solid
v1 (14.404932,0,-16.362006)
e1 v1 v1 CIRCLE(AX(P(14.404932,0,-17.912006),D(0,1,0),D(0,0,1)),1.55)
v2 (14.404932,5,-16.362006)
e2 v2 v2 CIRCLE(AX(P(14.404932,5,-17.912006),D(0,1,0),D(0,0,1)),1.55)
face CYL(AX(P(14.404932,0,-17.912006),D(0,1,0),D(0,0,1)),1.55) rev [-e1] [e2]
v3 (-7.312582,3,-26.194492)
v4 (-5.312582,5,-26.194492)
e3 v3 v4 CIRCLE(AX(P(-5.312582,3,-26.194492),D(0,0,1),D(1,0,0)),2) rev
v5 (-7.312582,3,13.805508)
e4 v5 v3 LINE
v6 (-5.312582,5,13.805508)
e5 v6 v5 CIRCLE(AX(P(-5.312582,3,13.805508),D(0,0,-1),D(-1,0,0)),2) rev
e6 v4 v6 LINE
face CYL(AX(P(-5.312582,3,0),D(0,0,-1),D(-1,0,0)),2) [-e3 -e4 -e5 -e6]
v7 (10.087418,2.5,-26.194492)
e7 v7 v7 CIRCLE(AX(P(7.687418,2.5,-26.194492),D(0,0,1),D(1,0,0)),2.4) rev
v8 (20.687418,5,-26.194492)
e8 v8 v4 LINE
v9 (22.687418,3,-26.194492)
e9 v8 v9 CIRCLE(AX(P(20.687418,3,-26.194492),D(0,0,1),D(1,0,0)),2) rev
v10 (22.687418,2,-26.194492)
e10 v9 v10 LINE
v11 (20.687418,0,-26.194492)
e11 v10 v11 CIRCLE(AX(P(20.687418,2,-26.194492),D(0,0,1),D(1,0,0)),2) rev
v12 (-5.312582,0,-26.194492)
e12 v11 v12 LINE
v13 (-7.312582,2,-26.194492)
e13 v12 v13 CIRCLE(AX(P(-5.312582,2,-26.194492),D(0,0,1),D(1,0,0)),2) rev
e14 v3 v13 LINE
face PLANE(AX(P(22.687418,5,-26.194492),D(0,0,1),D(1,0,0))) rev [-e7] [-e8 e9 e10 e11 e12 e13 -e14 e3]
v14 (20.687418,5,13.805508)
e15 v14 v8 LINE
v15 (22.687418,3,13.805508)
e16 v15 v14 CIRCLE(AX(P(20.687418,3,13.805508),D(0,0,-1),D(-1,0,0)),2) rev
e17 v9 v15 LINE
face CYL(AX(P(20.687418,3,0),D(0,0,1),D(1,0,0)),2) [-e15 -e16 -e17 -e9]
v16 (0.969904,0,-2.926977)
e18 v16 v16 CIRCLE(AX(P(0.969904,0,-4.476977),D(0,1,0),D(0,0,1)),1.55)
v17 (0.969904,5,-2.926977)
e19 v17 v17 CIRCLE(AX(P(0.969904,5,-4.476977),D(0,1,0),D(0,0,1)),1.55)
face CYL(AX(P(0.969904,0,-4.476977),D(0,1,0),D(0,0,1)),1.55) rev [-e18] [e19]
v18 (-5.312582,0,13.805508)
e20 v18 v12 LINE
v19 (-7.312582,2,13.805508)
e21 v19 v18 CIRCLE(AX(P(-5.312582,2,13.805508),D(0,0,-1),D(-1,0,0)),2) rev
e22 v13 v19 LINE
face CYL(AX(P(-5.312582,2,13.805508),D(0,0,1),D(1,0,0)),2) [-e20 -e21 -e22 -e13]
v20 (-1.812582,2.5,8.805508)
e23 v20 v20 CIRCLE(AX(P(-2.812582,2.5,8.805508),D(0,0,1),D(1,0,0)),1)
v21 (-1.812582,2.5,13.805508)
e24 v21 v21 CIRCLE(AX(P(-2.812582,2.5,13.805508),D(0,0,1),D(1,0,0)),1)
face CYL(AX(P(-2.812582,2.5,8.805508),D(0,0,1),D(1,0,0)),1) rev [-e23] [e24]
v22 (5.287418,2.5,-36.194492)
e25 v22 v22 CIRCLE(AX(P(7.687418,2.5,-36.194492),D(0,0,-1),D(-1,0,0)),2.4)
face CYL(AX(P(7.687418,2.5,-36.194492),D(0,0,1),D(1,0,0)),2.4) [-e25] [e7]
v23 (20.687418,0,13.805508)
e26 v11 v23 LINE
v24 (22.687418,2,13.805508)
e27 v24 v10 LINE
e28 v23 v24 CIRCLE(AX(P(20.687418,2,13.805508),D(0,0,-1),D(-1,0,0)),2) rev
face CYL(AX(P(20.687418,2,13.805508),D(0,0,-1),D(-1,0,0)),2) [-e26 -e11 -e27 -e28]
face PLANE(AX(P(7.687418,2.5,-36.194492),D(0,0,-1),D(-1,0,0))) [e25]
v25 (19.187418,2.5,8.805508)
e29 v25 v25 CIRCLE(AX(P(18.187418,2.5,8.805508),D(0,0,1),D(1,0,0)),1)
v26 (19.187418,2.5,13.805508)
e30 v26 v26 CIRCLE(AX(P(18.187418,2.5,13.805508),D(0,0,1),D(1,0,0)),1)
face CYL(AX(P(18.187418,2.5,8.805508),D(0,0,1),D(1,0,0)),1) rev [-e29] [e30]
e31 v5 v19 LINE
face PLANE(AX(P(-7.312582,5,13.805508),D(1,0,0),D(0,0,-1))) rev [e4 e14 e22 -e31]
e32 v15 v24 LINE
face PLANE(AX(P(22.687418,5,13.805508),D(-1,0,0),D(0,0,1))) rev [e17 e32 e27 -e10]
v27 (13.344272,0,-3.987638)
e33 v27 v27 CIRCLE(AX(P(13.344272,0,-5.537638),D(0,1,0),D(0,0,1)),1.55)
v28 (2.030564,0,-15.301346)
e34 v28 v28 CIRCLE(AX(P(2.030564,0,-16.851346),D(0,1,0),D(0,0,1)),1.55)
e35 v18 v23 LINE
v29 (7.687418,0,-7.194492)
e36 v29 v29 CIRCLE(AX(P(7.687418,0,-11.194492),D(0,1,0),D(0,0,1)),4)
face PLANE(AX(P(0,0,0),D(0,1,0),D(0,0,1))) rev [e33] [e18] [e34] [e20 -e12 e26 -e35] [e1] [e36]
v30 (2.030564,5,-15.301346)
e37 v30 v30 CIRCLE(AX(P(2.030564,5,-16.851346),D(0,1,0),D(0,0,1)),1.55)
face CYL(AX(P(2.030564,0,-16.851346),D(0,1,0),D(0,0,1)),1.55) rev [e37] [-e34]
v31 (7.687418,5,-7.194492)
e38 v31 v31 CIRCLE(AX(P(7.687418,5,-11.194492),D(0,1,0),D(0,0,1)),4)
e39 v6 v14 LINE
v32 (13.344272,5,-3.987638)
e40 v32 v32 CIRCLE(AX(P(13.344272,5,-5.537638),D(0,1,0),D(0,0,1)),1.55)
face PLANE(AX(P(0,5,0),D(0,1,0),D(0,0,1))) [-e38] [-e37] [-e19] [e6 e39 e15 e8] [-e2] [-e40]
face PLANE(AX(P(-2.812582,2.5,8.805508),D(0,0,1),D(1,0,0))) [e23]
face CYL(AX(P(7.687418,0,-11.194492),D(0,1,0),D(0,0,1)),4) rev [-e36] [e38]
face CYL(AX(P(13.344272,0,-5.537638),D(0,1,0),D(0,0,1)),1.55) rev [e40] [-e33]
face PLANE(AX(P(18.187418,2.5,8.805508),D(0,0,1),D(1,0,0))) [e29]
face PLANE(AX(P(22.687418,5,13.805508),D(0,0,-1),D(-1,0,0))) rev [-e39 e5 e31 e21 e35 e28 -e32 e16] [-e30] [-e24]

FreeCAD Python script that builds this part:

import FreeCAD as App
import Part
import Sketcher
from FreeCAD import Vector
Q = App.Units.Quantity


def edges_at(feature, points):
    """Names of the edges that pass closest to the given points."""
    edges = feature.Shape.Edges
    near = lambda p: min(range(len(edges)), key=lambda i: edges[i].distToShape(Part.Vertex(*p))[0])
    return sorted({f"Edge{near(p) + 1}" for p in points})


def add_polygon(sketch, points):
    """Adds a closed chain of lines whose ends are joined by coincident constraints."""
    first, n = sketch.GeometryCount, len(points)
    for a, b in zip(points, points[1:] + points[:1]):
        sketch.addGeometry(Part.LineSegment(App.Vector(*a, 0), App.Vector(*b, 0)), False)
    for i in range(n):
        sketch.addConstraint(Sketcher.Constraint("Coincident", first + i, 2, first + (i + 1) % n, 1))

doc = App.newDocument("Part")
body = doc.addObject("PartDesign::Body", "Body")

sketch1 = body.newObject("Sketcher::SketchObject", "Sketch")
sketch1.AttachmentSupport = (doc.getObject("XZ_Plane"), [""])
sketch1.MapMode = "FlatFace"
add_polygon(sketch1, [(-7.312582, -26.194492), (-7.312582, 13.805508), (22.687418, 13.805508), (22.687418, -26.194492)])
sketch1.addConstraint([
    Sketcher.Constraint("Vertical", 0),
    Sketcher.Constraint("Horizontal", 1),
    Sketcher.Constraint("Vertical", 2),
    Sketcher.Constraint("Horizontal", 3),
    Sketcher.Constraint("DistanceX", 1, 1, 1, 2, Q("30 mm")),
    Sketcher.Constraint("DistanceY", 0, 1, 0, 2, Q("40 mm")),
    Sketcher.Constraint("DistanceY", -1, 1, 0, 2, Q("13.805508 mm")),
    Sketcher.Constraint("DistanceX", 0, 2, -1, 1, Q("7.312582 mm")),
])
pad1 = body.newObject("PartDesign::Pad", "Pad")
pad1.Profile = sketch1
pad1.Length = 5
pad1.Reversed = True

sketch2 = body.newObject("Sketcher::SketchObject", "Sketch001")
sketch2.AttachmentSupport = (doc.getObject("XZ_Plane"), [""])
sketch2.MapMode = "FlatFace"
sketch2.AttachmentOffset = App.Placement(Vector(0, 0, -5), App.Rotation())
sketch2.addGeometry(Part.Circle(Vector(7.687418, -11.194492, 0), Vector(0, 0, 1), 4), False)
sketch2.addConstraint([
    Sketcher.Constraint("Diameter", 0, Q("8 mm")),
    Sketcher.Constraint("DistanceY", 0, 3, -1, 1, Q("11.194492 mm")),
    Sketcher.Constraint("DistanceX", -1, 1, 0, 3, Q("7.687418 mm")),
])
pocket1 = body.newObject("PartDesign::Pocket", "Pocket")
pocket1.Profile = sketch2
pocket1.Length = 5
pocket1.Reversed = True

sketch3 = body.newObject("Sketcher::SketchObject", "Sketch002")
sketch3.AttachmentSupport = (doc.getObject("XZ_Plane"), [""])
sketch3.MapMode = "FlatFace"
sketch3.AttachmentOffset = App.Placement(Vector(0, 0, -5), App.Rotation())
sketch3.addGeometry([
    Part.Circle(Vector(2.030564, -16.851346, 0), Vector(0, 0, 1), 1.55),
    Part.Circle(Vector(14.404932, -17.912006, 0), Vector(0, 0, 1), 1.55),
    Part.Circle(Vector(13.344272, -5.537638, 0), Vector(0, 0, 1), 1.55),
    Part.Circle(Vector(0.969904, -4.476977, 0), Vector(0, 0, 1), 1.55),
], False)
sketch3.addConstraint([
    Sketcher.Constraint("Equal", 0, 1),
    Sketcher.Constraint("Equal", 1, 2),
    Sketcher.Constraint("Equal", 2, 3),
    Sketcher.Constraint("Diameter", 0, Q("3.1 mm")),
    Sketcher.Constraint("DistanceX", 0, 3, 1, 3, Q("12.374369 mm")),
    Sketcher.Constraint("DistanceY", 1, 3, 0, 3, Q("1.06066 mm")),
    Sketcher.Constraint("DistanceX", 2, 3, 1, 3, Q("1.06066 mm")),
    Sketcher.Constraint("DistanceY", 1, 3, 2, 3, Q("12.374369 mm")),
    Sketcher.Constraint("DistanceX", 3, 3, 2, 3, Q("12.374369 mm")),
    Sketcher.Constraint("DistanceY", 2, 3, 3, 3, Q("1.06066 mm")),
    Sketcher.Constraint("DistanceX", -1, 1, 0, 3, Q("2.030564 mm")),
    Sketcher.Constraint("DistanceY", 0, 3, -1, 1, Q("16.851346 mm")),
])
pocket2 = body.newObject("PartDesign::Pocket", "Pocket001")
pocket2.Profile = sketch3
pocket2.Length = 5
pocket2.Reversed = True

sketch4 = body.newObject("Sketcher::SketchObject", "Sketch003")
sketch4.AttachmentSupport = (doc.getObject("XY_Plane"), [""])
sketch4.MapMode = "FlatFace"
sketch4.AttachmentOffset = App.Placement(Vector(0, 0, 13.805508), App.Rotation())
sketch4.addGeometry([
    Part.Circle(Vector(-2.812582, 2.5, 0), Vector(0, 0, 1), 1),
    Part.Circle(Vector(18.187418, 2.5, 0), Vector(0, 0, 1), 1),
], False)
sketch4.addConstraint([
    Sketcher.Constraint("Equal", 0, 1),
    Sketcher.Constraint("Horizontal", 0, 3, 1, 3),
    Sketcher.Constraint("Diameter", 0, Q("2 mm")),
    Sketcher.Constraint("DistanceX", 0, 3, 1, 3, Q("21 mm")),
    Sketcher.Constraint("DistanceY", -1, 1, 0, 3, Q("2.5 mm")),
    Sketcher.Constraint("DistanceX", 0, 3, -1, 1, Q("2.812582 mm")),
])
pocket3 = body.newObject("PartDesign::Pocket", "Pocket002")
pocket3.Profile = sketch4
pocket3.Length = 5

sketch5 = body.newObject("Sketcher::SketchObject", "Sketch004")
sketch5.AttachmentSupport = (doc.getObject("XY_Plane"), [""])
sketch5.MapMode = "FlatFace"
sketch5.AttachmentOffset = App.Placement(Vector(0, 0, -26.194492), App.Rotation())
sketch5.addGeometry(Part.Circle(Vector(7.687418, 2.5, 0), Vector(0, 0, 1), 2.4), False)
sketch5.addConstraint([
    Sketcher.Constraint("Diameter", 0, Q("4.8 mm")),
    Sketcher.Constraint("DistanceY", -1, 1, 0, 3, Q("2.5 mm")),
    Sketcher.Constraint("DistanceX", -1, 1, 0, 3, Q("7.687418 mm")),
])
pad2 = body.newObject("PartDesign::Pad", "Pad001")
pad2.Profile = sketch5
pad2.Length = 10
pad2.Reversed = True
doc.recompute()

fillet = body.newObject("PartDesign::Fillet", "Fillet")
fillet.Base = (pad2, edges_at(pad2, [
    (-7.313, 5, -6.194),
    (22.687, 5, -6.194),
    (-7.313, 0, -6.194),
    (22.687, 0, -6.194),
]))
fillet.Radius = 2

doc.recompute()
